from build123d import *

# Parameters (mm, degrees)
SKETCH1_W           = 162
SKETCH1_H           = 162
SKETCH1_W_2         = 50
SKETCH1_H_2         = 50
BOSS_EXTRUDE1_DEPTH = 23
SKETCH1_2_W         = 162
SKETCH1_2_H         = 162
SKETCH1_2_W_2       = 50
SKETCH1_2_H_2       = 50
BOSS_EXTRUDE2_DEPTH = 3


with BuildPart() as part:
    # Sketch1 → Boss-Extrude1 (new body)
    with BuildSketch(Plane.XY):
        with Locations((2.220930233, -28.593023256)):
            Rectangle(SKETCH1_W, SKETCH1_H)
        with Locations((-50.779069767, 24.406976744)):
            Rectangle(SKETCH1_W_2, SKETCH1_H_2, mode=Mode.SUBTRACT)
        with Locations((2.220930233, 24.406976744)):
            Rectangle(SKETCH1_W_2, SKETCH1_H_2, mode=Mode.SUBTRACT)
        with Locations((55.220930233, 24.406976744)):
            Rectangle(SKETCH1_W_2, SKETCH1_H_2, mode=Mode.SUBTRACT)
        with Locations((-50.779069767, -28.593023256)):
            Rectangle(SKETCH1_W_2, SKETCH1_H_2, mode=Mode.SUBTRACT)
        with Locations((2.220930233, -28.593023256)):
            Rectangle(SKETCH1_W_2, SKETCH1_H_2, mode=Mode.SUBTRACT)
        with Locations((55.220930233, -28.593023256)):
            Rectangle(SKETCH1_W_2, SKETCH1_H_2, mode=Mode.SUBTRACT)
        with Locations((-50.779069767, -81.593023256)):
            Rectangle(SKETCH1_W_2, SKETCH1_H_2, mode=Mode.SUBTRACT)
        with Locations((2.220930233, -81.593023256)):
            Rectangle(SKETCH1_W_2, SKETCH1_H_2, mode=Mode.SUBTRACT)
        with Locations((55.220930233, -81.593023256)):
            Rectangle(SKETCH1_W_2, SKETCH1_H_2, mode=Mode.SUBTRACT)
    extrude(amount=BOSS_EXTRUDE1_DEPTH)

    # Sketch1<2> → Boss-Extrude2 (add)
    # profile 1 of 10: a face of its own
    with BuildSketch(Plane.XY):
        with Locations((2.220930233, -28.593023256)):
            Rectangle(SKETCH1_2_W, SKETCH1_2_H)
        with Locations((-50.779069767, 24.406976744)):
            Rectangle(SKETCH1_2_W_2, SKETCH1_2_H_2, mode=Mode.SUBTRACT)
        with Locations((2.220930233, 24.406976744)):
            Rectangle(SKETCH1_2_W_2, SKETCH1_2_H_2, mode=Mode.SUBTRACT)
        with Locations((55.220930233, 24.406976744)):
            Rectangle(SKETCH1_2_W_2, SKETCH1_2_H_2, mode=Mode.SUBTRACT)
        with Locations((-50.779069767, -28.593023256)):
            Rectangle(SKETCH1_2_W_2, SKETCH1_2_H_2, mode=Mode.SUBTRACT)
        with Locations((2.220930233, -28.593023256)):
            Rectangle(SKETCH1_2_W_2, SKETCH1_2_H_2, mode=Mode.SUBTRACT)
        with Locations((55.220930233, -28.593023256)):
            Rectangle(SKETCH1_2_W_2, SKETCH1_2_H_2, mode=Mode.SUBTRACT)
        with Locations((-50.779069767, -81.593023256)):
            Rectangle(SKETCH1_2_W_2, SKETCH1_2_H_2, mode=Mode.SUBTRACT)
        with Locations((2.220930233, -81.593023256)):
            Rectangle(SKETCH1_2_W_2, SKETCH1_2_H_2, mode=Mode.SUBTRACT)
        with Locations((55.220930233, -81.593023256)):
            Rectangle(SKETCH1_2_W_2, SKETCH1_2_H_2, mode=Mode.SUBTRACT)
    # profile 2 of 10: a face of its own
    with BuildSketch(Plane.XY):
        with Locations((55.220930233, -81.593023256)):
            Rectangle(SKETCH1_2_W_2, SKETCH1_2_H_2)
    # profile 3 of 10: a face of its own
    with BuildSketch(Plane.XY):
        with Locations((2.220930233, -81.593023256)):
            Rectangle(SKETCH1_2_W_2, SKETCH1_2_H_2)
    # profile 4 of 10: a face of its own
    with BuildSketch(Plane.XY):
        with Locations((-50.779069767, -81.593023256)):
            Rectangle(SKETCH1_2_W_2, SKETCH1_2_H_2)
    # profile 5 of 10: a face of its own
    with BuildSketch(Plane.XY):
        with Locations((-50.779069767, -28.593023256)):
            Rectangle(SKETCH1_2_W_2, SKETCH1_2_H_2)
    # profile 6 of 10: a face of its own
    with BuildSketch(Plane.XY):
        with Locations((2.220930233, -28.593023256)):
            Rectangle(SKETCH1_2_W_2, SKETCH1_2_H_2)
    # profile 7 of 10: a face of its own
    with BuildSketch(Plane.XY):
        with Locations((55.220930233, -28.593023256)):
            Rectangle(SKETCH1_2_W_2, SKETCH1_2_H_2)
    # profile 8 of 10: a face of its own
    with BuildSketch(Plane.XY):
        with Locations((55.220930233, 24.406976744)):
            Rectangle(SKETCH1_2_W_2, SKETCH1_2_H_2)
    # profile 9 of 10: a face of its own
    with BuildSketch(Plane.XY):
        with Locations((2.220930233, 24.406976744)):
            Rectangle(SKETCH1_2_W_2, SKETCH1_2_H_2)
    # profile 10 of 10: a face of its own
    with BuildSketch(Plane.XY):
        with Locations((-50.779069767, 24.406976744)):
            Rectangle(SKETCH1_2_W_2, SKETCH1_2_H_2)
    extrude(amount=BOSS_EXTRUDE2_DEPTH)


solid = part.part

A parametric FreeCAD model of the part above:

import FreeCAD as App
import Part
import Sketcher
from FreeCAD import Vector
Q = App.Units.Quantity


def add_polygon(sketch, points):
    """Adds a closed chain of lines whose ends are joined by coincident constraints."""
    first, n = sketch.GeometryCount, len(points)
    for a, b in zip(points, points[1:] + points[:1]):
        sketch.addGeometry(Part.LineSegment(App.Vector(*a, 0), App.Vector(*b, 0)), False)
    for i in range(n):
        sketch.addConstraint(Sketcher.Constraint("Coincident", first + i, 2, first + (i + 1) % n, 1))

doc = App.newDocument("Part")
params = doc.addObject("Spreadsheet::Sheet", "Params")
for row, (alias, value) in enumerate([
    ("sketch1_width", "162 mm"),
    ("sketch1_width2", "50 mm"),
    ("pad1_length", "23 mm"),
    ("sketch2_width", "162 mm"),
    ("pad2_length", "3 mm"),
], start=1):
    params.set(f"A{row}", alias)
    params.set(f"B{row}", "=" + value)
    params.setAlias(f"B{row}", alias)

body = doc.addObject("PartDesign::Body", "Body")

sketch1 = doc.addObject("Sketcher::SketchObject", "Sketch")
body.addObject(sketch1)
sketch1.AttachmentSupport = (doc.XY_Plane, [""])
sketch1.MapMode = "FlatFace"
add_polygon(sketch1, [(-79, 52), (-79, -110), (83, -110), (83, 52)])
add_polygon(sketch1, [(-26, -107), (-76, -107), (-76, -57), (-26, -57)])
add_polygon(sketch1, [(27, -107), (-23, -107), (-23, -57), (27, -57)])
add_polygon(sketch1, [(80, -107), (30, -107), (30, -57), (80, -57)])
add_polygon(sketch1, [(-26, -54), (-76, -54), (-76, -4), (-26, -4)])
add_polygon(sketch1, [(-26, -1), (-76, -1), (-76, 49), (-26, 49)])
add_polygon(sketch1, [(27, -54), (-23, -54), (-23, -4), (27, -4)])
add_polygon(sketch1, [(80, -54), (30, -54), (30, -4), (80, -4)])
add_polygon(sketch1, [(27, -1), (-23, -1), (-23, 49), (27, 49)])
add_polygon(sketch1, [(80, -1), (30, -1), (30, 49), (80, 49)])
sketch1.addConstraint([
    Sketcher.Constraint("Vertical", 0),
    Sketcher.Constraint("Horizontal", 1),
    Sketcher.Constraint("Vertical", 2),
    Sketcher.Constraint("Horizontal", 3),
    Sketcher.Constraint("Horizontal", 4),
    Sketcher.Constraint("Vertical", 5),
    Sketcher.Constraint("Horizontal", 6),
    Sketcher.Constraint("Vertical", 7),
    Sketcher.Constraint("Horizontal", 8),
    Sketcher.Constraint("Vertical", 9),
    Sketcher.Constraint("Horizontal", 10),
    Sketcher.Constraint("Vertical", 11),
    Sketcher.Constraint("Horizontal", 12),
    Sketcher.Constraint("Vertical", 13),
    Sketcher.Constraint("Horizontal", 14),
    Sketcher.Constraint("Vertical", 15),
    Sketcher.Constraint("Horizontal", 16),
    Sketcher.Constraint("Vertical", 17),
    Sketcher.Constraint("Horizontal", 18),
    Sketcher.Constraint("Vertical", 19),
    Sketcher.Constraint("Horizontal", 20),
    Sketcher.Constraint("Vertical", 21),
    Sketcher.Constraint("Horizontal", 22),
    Sketcher.Constraint("Vertical", 23),
    Sketcher.Constraint("Horizontal", 24),
    Sketcher.Constraint("Vertical", 25),
    Sketcher.Constraint("Horizontal", 26),
    Sketcher.Constraint("Vertical", 27),
    Sketcher.Constraint("Horizontal", 28),
    Sketcher.Constraint("Vertical", 29),
    Sketcher.Constraint("Horizontal", 30),
    Sketcher.Constraint("Vertical", 31),
    Sketcher.Constraint("Horizontal", 32),
    Sketcher.Constraint("Vertical", 33),
    Sketcher.Constraint("Horizontal", 34),
    Sketcher.Constraint("Vertical", 35),
    Sketcher.Constraint("Horizontal", 36),
    Sketcher.Constraint("Vertical", 37),
    Sketcher.Constraint("Horizontal", 38),
    Sketcher.Constraint("Vertical", 39),
    Sketcher.Constraint("Horizontal", 7, 2, 8, 2),
    Sketcher.Constraint("Horizontal", 6, 2, 9, 2),
    Sketcher.Constraint("Horizontal", 11, 2, 12, 2),
    Sketcher.Constraint("Horizontal", 10, 2, 13, 2),
    Sketcher.Constraint("Horizontal", 19, 2, 24, 2),
    Sketcher.Constraint("Horizontal", 18, 2, 25, 2),
    Sketcher.Constraint("Horizontal", 27, 2, 28, 2),
    Sketcher.Constraint("Horizontal", 26, 2, 29, 2),
    Sketcher.Constraint("Horizontal", 23, 2, 32, 2),
    Sketcher.Constraint("Horizontal", 22, 2, 33, 2),
    Sketcher.Constraint("Horizontal", 35, 2, 36, 2),
    Sketcher.Constraint("Horizontal", 34, 2, 37, 2),
    Sketcher.Constraint("Vertical", 5, 2, 16, 2),
    Sketcher.Constraint("Vertical", 7, 2, 18, 2),
    Sketcher.Constraint("Vertical", 17, 2, 20, 2),
    Sketcher.Constraint("Vertical", 19, 2, 22, 2),
    Sketcher.Constraint("Vertical", 9, 2, 24, 2),
    Sketcher.Constraint("Vertical", 11, 2, 26, 2),
    Sketcher.Constraint("Vertical", 13, 2, 28, 2),
    Sketcher.Constraint("Vertical", 15, 2, 30, 2),
    Sketcher.Constraint("Vertical", 25, 2, 32, 2),
    Sketcher.Constraint("Vertical", 27, 2, 34, 2),
    Sketcher.Constraint("Vertical", 29, 2, 36, 2),
    Sketcher.Constraint("Vertical", 31, 2, 38, 2),
    Sketcher.Constraint("Equal", 6, 8),
    Sketcher.Constraint("Equal", 10, 12),
    Sketcher.Constraint("Equal", 3, 0),
    Sketcher.Constraint("Equal", 38, 5),
    Sketcher.Constraint("Equal", 15, 17),
    Sketcher.Constraint("Equal", 19, 21),
    Sketcher.Constraint("DistanceX", 1, 1, 1, 2, Q("162 mm")),
    Sketcher.Constraint("DistanceX", 4, 2, 4, 1, Q("50 mm")),
    Sketcher.Constraint("DistanceX", 0, 2, 4, 2, Q("3 mm")),
    Sketcher.Constraint("DistanceY", 0, 2, 4, 2, Q("3 mm")),
    Sketcher.Constraint("DistanceX", 7, 2, 8, 2, Q("3 mm")),
    Sketcher.Constraint("DistanceX", 11, 2, 12, 2, Q("3 mm")),
    Sketcher.Constraint("DistanceY", 5, 2, 16, 2, Q("3 mm")),
    Sketcher.Constraint("DistanceY", 17, 2, 20, 2, Q("3 mm")),
    Sketcher.Constraint("DistanceX", 0, 2, -1, 1, Q("78.77907 mm")),
    Sketcher.Constraint("DistanceY", 0, 2, -1, 1, Q("109.593023 mm")),
])
sketch1.setExpression("Constraints[110]", "Params.sketch1_width")
sketch1.setExpression("Constraints[111]", "Params.sketch1_width2")
pad1 = doc.addObject("PartDesign::Pad", "Pad")
body.addObject(pad1)
pad1.Profile = sketch1
pad1.setExpression("Length", "Params.pad1_length")

sketch2 = doc.addObject("Sketcher::SketchObject", "Sketch001")
body.addObject(sketch2)
sketch2.AttachmentSupport = (doc.XY_Plane, [""])
sketch2.MapMode = "FlatFace"
add_polygon(sketch2, [(-79, 52), (-79, -110), (83, -110), (83, 52)])
sketch2.addConstraint([
    Sketcher.Constraint("Vertical", 0),
    Sketcher.Constraint("Horizontal", 1),
    Sketcher.Constraint("Vertical", 2),
    Sketcher.Constraint("Horizontal", 3),
    Sketcher.Constraint("Equal", 3, 0),
    Sketcher.Constraint("DistanceX", 1, 1, 1, 2, Q("162 mm")),
    Sketcher.Constraint("DistanceX", 0, 2, -1, 1, Q("78.77907 mm")),
    Sketcher.Constraint("DistanceY", 0, 2, -1, 1, Q("109.593023 mm")),
])
sketch2.setExpression("Constraints[9]", "Params.sketch2_width")
pad2 = doc.addObject("PartDesign::Pad", "Pad001")
body.addObject(pad2)
pad2.Profile = sketch2
pad2.setExpression("Length", "Params.pad2_length")

doc.recompute()
